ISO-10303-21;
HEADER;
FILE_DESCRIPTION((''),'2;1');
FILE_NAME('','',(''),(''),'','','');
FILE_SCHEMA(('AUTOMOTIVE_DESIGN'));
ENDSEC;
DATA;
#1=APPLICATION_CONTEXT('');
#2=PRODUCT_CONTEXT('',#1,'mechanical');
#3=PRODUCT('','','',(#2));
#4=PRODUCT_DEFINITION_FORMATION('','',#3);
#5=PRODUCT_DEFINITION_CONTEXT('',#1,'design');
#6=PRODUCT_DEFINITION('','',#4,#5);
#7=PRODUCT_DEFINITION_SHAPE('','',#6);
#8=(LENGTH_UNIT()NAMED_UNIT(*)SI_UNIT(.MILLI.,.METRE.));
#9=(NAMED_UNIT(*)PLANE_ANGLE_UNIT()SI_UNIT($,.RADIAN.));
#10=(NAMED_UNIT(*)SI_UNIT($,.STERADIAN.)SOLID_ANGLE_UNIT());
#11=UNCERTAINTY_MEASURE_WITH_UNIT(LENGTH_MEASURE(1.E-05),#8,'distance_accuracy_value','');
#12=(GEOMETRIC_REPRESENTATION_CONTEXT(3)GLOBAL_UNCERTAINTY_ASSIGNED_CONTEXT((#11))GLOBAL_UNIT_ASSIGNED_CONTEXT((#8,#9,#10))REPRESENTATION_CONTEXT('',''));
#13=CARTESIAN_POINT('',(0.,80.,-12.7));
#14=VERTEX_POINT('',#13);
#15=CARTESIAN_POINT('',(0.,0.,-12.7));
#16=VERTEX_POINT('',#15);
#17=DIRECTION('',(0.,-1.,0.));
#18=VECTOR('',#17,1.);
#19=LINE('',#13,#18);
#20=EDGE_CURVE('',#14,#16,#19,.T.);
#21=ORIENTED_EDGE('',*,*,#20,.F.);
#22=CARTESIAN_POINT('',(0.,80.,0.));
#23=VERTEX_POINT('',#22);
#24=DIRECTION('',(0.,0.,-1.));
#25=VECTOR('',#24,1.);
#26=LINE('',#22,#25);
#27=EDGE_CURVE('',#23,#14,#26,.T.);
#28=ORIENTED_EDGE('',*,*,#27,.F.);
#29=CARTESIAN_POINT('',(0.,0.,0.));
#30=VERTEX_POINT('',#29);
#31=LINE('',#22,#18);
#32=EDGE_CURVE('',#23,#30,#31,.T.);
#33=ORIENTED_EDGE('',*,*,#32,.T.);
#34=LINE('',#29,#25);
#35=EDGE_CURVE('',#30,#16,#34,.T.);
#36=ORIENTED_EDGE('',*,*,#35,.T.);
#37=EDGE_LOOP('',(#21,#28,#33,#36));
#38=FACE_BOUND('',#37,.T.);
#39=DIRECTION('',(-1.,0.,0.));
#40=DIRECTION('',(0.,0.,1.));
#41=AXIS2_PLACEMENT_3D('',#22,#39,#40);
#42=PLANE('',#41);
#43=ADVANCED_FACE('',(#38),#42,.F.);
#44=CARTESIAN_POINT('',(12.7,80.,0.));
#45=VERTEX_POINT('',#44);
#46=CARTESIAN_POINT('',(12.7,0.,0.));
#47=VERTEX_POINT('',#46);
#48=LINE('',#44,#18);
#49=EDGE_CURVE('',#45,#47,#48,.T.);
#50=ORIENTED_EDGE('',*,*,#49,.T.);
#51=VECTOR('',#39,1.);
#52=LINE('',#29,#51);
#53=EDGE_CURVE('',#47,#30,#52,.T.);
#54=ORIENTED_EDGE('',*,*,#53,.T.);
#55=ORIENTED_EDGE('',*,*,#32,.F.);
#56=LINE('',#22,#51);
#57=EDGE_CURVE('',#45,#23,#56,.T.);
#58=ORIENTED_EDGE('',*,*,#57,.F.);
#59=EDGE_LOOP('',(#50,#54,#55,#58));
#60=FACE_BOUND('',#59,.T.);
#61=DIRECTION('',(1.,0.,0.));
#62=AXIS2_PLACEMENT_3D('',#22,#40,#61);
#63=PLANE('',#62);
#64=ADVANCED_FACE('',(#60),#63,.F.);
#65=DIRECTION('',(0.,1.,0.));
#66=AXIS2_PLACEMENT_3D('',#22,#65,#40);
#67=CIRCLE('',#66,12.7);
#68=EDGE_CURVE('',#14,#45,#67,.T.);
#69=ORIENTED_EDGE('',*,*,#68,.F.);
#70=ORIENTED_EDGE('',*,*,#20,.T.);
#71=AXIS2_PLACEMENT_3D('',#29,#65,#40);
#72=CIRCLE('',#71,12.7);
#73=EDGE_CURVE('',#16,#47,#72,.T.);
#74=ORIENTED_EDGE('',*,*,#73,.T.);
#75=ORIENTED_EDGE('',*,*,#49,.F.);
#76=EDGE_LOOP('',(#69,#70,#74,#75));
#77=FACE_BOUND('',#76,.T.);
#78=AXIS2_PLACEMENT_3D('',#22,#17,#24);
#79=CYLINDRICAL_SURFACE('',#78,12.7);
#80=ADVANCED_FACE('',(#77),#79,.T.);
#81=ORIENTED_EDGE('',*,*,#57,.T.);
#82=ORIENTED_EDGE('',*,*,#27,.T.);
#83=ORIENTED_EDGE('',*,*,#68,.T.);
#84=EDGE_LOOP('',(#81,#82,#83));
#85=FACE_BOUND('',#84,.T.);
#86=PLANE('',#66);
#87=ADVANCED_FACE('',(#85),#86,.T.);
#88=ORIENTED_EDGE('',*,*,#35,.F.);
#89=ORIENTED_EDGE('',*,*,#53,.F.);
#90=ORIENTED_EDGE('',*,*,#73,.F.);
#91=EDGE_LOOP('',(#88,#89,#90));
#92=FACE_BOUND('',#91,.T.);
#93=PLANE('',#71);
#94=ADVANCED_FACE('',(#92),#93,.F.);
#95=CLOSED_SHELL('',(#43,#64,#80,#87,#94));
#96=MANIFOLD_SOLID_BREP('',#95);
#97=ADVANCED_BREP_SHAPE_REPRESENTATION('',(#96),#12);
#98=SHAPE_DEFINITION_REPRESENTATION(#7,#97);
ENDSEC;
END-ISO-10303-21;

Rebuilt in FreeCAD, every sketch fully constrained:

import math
import FreeCAD as App
import Part
import Sketcher
from FreeCAD import Vector
Q = App.Units.Quantity

doc = App.newDocument("Part")
body = doc.addObject("PartDesign::Body", "Body")

# Sketch on XZ plane
sketch1 = body.newObject("Sketcher::SketchObject", "Sketch")
sketch1.AttachmentSupport = (doc.getObject("XZ_Plane"), [""])
sketch1.MapMode = "FlatFace"
sketch1.addGeometry([
    Part.LineSegment(Vector(0, 0, 0), Vector(0, -13, 0)),
    Part.ArcOfCircle(Part.Circle(Vector(0, 0, 0), Vector(0, 0, 1), 13), math.radians(0), math.radians(270)),
    Part.LineSegment(Vector(13, 0, 0), Vector(0, 0, 0)),
], False)
sketch1.addConstraint([
    Sketcher.Constraint("Coincident", 0, 2, 1, 2),
    Sketcher.Constraint("Coincident", 1, 1, 2, 1),
    Sketcher.Constraint("Coincident", 2, 2, 0, 1),
    Sketcher.Constraint("Vertical", 0),
    Sketcher.Constraint("Horizontal", 2),
    Sketcher.Constraint("Coincident", 1, 3, -1, 1),
    Sketcher.Constraint("Coincident", 2, 2, -1, 1),
    Sketcher.Constraint("Radius", 1, Q("0.5 in")),
])
pad1 = body.newObject("PartDesign::Pad", "Pad")
pad1.Profile = sketch1
pad1.Length = 80
pad1.Reversed = True

doc.recompute()
